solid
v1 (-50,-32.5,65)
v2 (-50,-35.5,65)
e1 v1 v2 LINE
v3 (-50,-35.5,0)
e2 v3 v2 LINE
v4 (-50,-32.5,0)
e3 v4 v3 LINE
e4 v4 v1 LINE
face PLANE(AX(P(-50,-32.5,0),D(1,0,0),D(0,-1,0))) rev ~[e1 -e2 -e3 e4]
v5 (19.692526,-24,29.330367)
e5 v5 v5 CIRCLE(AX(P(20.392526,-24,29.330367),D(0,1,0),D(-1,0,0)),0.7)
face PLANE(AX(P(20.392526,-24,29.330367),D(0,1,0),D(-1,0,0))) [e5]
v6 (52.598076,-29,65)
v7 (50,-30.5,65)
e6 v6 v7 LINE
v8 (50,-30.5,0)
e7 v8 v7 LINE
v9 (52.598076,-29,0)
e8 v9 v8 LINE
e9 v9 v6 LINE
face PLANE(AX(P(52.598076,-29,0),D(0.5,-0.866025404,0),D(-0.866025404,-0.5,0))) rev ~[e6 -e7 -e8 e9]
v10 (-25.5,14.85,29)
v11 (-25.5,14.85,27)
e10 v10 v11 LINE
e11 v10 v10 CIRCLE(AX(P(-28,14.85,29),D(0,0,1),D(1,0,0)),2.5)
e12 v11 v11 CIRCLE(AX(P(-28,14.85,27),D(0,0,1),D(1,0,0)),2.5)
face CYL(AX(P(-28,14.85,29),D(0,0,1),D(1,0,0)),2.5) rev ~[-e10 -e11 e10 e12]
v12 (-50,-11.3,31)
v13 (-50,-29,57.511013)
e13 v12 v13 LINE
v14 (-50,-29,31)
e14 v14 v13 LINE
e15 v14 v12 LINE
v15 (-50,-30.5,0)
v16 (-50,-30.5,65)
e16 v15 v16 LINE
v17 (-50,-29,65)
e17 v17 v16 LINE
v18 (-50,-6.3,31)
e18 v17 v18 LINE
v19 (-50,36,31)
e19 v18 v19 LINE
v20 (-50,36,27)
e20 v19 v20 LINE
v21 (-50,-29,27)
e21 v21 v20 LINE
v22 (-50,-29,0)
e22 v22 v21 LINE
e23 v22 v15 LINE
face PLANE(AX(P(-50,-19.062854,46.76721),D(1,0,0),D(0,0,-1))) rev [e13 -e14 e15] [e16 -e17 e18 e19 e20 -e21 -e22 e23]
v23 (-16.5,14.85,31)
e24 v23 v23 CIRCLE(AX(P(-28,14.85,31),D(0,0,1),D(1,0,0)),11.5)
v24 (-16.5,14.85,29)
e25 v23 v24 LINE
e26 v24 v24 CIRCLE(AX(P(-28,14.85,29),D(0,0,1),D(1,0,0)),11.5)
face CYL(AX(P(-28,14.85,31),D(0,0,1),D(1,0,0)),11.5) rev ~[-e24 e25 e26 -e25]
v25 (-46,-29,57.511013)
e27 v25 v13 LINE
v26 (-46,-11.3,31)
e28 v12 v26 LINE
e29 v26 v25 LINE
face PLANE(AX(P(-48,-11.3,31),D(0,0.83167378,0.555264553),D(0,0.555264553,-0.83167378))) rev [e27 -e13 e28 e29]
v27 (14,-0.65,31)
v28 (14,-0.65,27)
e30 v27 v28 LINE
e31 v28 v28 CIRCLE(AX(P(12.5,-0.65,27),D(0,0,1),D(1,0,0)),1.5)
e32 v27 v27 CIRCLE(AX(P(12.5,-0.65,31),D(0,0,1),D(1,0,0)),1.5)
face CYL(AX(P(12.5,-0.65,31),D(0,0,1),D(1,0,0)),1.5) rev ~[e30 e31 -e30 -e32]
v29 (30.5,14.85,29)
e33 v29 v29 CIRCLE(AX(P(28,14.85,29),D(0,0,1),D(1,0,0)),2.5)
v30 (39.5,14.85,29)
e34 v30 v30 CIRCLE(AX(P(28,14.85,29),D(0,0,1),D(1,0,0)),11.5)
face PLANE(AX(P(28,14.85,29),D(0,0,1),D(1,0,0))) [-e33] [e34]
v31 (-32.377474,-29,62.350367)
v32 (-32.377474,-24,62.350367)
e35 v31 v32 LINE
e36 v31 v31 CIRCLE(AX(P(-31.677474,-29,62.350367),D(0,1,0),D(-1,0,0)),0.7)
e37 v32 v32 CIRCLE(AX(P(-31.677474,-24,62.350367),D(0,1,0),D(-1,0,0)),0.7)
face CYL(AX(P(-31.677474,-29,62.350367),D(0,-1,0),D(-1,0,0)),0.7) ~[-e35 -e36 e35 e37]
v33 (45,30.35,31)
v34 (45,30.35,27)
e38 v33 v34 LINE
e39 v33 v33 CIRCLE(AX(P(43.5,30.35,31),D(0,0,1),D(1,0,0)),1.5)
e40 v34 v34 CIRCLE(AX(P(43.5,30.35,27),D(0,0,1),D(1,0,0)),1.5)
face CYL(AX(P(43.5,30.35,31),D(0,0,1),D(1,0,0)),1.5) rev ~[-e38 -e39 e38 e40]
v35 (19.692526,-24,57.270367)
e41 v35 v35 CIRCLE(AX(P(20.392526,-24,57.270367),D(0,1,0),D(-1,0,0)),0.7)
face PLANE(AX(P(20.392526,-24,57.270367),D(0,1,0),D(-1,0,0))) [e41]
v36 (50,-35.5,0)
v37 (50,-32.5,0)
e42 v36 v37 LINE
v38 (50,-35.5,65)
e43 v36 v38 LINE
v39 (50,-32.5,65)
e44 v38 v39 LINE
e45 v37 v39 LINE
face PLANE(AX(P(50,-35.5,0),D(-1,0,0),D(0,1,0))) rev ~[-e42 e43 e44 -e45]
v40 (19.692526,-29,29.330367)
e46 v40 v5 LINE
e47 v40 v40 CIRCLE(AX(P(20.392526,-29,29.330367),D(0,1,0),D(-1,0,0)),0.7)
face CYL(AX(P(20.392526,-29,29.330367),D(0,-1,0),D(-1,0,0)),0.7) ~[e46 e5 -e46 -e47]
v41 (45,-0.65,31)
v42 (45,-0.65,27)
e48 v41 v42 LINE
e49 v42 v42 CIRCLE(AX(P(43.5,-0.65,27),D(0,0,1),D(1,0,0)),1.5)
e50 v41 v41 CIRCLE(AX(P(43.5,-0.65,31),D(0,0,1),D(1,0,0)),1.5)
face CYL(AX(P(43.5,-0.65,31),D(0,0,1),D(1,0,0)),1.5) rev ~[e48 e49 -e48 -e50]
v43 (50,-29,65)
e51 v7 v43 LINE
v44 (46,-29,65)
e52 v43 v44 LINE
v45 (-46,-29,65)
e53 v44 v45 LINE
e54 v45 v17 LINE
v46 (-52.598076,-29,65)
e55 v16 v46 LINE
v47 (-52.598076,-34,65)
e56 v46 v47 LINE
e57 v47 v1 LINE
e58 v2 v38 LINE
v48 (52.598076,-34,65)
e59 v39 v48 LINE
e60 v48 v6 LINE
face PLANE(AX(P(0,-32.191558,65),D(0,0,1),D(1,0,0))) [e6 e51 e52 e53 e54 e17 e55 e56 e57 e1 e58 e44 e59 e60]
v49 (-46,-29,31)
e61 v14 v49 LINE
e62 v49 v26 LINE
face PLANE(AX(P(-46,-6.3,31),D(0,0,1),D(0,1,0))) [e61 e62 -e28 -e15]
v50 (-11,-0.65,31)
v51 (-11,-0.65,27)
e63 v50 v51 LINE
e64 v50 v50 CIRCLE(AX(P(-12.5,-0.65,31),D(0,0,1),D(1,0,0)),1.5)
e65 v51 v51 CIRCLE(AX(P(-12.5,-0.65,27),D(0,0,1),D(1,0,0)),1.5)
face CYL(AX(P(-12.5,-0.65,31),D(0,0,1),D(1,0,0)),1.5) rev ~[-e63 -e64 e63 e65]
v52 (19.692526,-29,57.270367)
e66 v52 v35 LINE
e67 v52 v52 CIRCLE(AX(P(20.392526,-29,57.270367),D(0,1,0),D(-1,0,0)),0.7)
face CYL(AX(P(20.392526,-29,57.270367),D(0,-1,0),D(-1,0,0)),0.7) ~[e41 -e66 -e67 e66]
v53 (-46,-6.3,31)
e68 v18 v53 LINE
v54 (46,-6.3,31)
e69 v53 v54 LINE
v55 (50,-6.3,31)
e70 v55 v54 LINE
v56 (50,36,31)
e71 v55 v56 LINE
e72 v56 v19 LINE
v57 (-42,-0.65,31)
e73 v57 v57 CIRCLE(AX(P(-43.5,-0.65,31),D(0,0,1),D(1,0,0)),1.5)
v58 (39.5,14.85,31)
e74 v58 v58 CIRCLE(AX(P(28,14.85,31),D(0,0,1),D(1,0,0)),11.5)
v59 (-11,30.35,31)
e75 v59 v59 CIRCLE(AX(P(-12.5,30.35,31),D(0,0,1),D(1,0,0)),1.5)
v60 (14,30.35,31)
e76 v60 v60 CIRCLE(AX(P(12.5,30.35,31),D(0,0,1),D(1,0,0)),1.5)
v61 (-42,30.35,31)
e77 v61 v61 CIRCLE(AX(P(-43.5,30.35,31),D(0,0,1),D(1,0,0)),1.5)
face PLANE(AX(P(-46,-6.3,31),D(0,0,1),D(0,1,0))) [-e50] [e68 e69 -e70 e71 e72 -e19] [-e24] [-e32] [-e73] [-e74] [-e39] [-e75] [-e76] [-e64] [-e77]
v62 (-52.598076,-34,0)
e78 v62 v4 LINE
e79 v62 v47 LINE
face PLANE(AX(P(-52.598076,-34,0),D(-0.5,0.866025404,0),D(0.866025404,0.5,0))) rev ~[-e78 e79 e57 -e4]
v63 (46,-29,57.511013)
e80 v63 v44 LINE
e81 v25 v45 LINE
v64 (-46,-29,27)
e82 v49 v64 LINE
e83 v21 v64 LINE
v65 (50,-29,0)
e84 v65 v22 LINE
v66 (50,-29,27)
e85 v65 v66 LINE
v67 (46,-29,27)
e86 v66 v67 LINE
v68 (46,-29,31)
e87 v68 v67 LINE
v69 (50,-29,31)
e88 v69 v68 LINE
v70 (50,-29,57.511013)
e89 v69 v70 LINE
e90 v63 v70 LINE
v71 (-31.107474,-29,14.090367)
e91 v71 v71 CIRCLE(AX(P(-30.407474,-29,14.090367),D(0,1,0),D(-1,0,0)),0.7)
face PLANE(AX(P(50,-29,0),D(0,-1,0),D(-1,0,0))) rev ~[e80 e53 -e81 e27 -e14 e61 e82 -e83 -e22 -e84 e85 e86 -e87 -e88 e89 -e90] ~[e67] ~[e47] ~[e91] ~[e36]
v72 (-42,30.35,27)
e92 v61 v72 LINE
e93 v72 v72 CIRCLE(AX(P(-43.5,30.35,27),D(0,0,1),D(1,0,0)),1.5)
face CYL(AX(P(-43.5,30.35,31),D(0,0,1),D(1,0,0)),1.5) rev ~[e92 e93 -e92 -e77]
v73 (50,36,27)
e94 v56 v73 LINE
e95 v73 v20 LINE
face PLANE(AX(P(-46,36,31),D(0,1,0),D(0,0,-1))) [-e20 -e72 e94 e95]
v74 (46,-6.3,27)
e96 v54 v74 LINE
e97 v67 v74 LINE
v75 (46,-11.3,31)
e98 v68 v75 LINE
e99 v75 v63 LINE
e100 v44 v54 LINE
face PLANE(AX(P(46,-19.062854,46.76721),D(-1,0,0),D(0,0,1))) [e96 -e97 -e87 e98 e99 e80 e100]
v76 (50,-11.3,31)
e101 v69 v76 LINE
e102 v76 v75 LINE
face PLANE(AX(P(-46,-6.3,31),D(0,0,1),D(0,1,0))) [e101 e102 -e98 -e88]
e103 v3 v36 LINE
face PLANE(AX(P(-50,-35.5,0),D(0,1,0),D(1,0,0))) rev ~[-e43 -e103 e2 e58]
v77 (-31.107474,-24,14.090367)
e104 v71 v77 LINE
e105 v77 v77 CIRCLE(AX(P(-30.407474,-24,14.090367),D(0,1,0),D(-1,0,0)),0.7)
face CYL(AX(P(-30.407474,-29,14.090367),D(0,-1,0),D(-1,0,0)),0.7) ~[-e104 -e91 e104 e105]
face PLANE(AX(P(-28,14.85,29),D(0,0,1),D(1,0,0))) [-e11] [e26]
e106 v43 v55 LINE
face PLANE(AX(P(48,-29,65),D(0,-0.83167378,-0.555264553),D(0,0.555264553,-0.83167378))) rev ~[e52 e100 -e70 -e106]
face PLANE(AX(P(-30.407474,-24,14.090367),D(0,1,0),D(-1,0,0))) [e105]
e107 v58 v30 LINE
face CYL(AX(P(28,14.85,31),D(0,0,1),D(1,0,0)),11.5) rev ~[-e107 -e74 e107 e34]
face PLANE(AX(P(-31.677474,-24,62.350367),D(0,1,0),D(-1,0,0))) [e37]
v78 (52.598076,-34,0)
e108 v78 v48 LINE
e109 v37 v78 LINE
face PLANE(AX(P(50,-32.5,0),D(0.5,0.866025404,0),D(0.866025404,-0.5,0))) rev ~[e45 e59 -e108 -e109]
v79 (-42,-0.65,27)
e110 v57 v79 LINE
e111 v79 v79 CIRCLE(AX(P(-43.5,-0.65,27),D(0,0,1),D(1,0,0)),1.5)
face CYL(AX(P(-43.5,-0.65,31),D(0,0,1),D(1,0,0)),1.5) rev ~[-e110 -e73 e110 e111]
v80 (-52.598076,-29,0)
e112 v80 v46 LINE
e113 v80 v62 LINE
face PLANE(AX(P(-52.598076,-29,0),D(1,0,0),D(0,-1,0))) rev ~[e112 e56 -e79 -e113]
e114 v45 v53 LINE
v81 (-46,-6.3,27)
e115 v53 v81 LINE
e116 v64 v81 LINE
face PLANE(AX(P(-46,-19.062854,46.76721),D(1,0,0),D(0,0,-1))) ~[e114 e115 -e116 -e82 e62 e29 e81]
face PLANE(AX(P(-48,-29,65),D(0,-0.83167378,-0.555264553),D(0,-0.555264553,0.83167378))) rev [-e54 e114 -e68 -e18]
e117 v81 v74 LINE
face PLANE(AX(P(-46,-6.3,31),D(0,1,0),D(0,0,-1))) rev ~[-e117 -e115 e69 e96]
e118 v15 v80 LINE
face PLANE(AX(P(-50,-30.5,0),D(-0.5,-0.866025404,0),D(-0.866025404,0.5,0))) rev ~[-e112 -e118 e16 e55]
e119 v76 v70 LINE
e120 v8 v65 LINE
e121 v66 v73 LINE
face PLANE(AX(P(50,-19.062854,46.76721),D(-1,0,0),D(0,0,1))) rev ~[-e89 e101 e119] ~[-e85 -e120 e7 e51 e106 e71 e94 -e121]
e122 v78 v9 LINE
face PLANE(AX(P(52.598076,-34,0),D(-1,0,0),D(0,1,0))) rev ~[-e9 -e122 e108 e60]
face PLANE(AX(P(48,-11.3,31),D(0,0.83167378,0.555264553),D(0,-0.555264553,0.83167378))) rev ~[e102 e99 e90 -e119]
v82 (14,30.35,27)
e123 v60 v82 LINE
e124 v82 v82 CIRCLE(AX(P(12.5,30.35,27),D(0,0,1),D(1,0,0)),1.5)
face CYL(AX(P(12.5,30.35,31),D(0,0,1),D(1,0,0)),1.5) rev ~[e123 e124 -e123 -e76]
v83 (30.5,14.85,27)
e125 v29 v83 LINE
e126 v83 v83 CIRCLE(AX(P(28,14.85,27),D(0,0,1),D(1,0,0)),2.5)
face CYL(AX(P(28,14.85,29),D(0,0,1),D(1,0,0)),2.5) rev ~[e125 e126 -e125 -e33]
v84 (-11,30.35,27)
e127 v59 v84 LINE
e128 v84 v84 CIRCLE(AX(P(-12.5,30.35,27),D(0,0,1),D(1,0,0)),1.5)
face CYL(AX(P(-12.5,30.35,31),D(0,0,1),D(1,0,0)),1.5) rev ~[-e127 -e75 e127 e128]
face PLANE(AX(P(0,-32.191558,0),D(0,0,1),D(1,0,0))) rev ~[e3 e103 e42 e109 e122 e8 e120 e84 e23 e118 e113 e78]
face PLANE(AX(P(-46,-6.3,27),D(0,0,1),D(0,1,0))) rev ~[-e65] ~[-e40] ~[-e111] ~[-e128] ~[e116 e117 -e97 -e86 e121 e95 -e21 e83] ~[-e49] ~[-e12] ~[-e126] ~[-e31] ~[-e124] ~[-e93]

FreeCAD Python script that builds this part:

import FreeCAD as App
import Part
import Sketcher
Q = App.Units.Quantity


def add_polygon(sketch, points):
    """Adds a closed chain of lines whose ends are joined by coincident constraints."""
    first, n = sketch.GeometryCount, len(points)
    for a, b in zip(points, points[1:] + points[:1]):
        sketch.addGeometry(Part.LineSegment(App.Vector(*a, 0), App.Vector(*b, 0)), False)
    for i in range(n):
        sketch.addConstraint(Sketcher.Constraint("Coincident", first + i, 2, first + (i + 1) % n, 1))

doc = App.newDocument("Part")
body = doc.addObject("PartDesign::Body", "Body")

# Sketch on XY plane
sketch1 = body.newObject("Sketcher::SketchObject", "Sketch")
sketch1.AttachmentSupport = (doc.getObject("XY_Plane"), [""])
sketch1.MapMode = "FlatFace"
add_polygon(sketch1, [(-50, -29), (-50, -30.5), (-52.6, -29), (-52.6, -34), (-50, -32.5), (-50, -35.5), (50, -35.5), (50, -32.5), (52.6, -34), (52.6, -29), (50, -30.5), (50, -29)])  # lines 0-11
sketch1.addConstraint(Sketcher.Constraint("Vertical", 0))
sketch1.addConstraint(Sketcher.Constraint("Vertical", 2))
sketch1.addConstraint(Sketcher.Constraint("Vertical", 4))
sketch1.addConstraint(Sketcher.Constraint("Horizontal", 5))
sketch1.addConstraint(Sketcher.Constraint("Vertical", 6))
sketch1.addConstraint(Sketcher.Constraint("Vertical", 8))
sketch1.addConstraint(Sketcher.Constraint("Vertical", 10))
sketch1.addConstraint(Sketcher.Constraint("Horizontal", 11))
sketch1.addConstraint(Sketcher.Constraint("Symmetric", 3, 2, 6, 2, -2))
sketch1.addConstraint(Sketcher.Constraint("Symmetric", 2, 2, 7, 2, -2))
sketch1.addConstraint(Sketcher.Constraint("Symmetric", 0, 2, 9, 2, -2))
sketch1.addConstraint(Sketcher.Constraint("Parallel", 1, 7))
sketch1.addConstraint(Sketcher.Constraint("Parallel", 3, 9))
sketch1.addConstraint(Sketcher.Constraint("Horizontal", 8, 2, 10, 2))
sketch1.addConstraint(Sketcher.Constraint("Vertical", 0, 2, 3, 2))
sketch1.addConstraint(Sketcher.Constraint("DistanceX", 5, 1, 5, 2, 100.0))
sketch1.addConstraint(Sketcher.Constraint("DistanceY", 2, 2, 2, 1, 5.0))
sketch1.addConstraint(Sketcher.Constraint("DistanceY", 4, 2, 4, 1, 3.0))
sketch1.addConstraint(Sketcher.Constraint("Angle", 1, Q("150 deg")))
sketch1.addConstraint(Sketcher.Constraint("Distance", 1, 3.0))
sketch1.addConstraint(Sketcher.Constraint("DistanceY", 1, 2, -1, 1, 29.0))
pad1 = body.newObject("PartDesign::Pad", "Pad")
pad1.Profile = sketch1
pad1.Length = 65

# Sketch on XZ plane
sketch2 = body.newObject("Sketcher::SketchObject", "Sketch001")
sketch2.AttachmentSupport = (doc.getObject("XZ_Plane"), [""])
sketch2.MapMode = "FlatFace"
sketch2.AttachmentOffset = App.Placement(App.Vector(0, 0, 29), App.Rotation())
add_polygon(sketch2, [(-50, 27), (-50, 31), (-46, 31), (-46, 27)])  # lines 0-3
sketch2.addConstraint(Sketcher.Constraint("Vertical", 0))
sketch2.addConstraint(Sketcher.Constraint("Horizontal", 1))
sketch2.addConstraint(Sketcher.Constraint("Vertical", 2))
sketch2.addConstraint(Sketcher.Constraint("Horizontal", 3))
sketch2.addConstraint(Sketcher.Constraint("Equal", 3, 0))
sketch2.addConstraint(Sketcher.Constraint("DistanceX", 1, 1, 1, 2, 4.0))
sketch2.addConstraint(Sketcher.Constraint("DistanceX", 0, 2, -1, 1, 50.0))
sketch2.addConstraint(Sketcher.Constraint("DistanceY", -1, 1, 0, 2, 31.0))
pad2 = body.newObject("PartDesign::Pad", "Pad001")
pad2.Profile = sketch2
pad2.Length = 65
pad2.Reversed = True
doc.recompute()

mirrored = body.newObject("PartDesign::Mirrored", "Mirrored")
mirrored.Originals = [pad2]
mirrored.MirrorPlane = (doc.getObject("YZ_Plane"), [""])
body.Tip = mirrored

# Sketch on YZ plane
sketch3 = body.newObject("Sketcher::SketchObject", "Sketch002")
sketch3.AttachmentSupport = (doc.getObject("YZ_Plane"), [""])
sketch3.MapMode = "FlatFace"
sketch3.AttachmentOffset = App.Placement(App.Vector(0, 0, -46), App.Rotation())
add_polygon(sketch3, [(36, 31), (-6.3, 31), (-6.3, 27), (36, 27)])  # lines 0-3
sketch3.addConstraint(Sketcher.Constraint("Horizontal", 0))
sketch3.addConstraint(Sketcher.Constraint("Vertical", 1))
sketch3.addConstraint(Sketcher.Constraint("Horizontal", 2))
sketch3.addConstraint(Sketcher.Constraint("Vertical", 3))
sketch3.addConstraint(Sketcher.Constraint("DistanceY", 1, 2, 1, 1, 4.0))
sketch3.addConstraint(Sketcher.Constraint("DistanceX", 0, 2, 0, 1, 42.3))
sketch3.addConstraint(Sketcher.Constraint("DistanceY", -1, 1, 0, 2, 31.0))
sketch3.addConstraint(Sketcher.Constraint("DistanceX", -1, 1, 2, 2, 36.0))
pad3 = body.newObject("PartDesign::Pad", "Pad002")
pad3.Profile = sketch3
pad3.Length = 92

# Sketch on XY plane
sketch4 = body.newObject("Sketcher::SketchObject", "Sketch003")
sketch4.AttachmentSupport = (doc.getObject("XY_Plane"), [""])
sketch4.MapMode = "FlatFace"
sketch4.AttachmentOffset = App.Placement(App.Vector(0, 0, 31), App.Rotation())
sketch4.addGeometry(Part.Circle(App.Vector(-28, 15, 0), App.Vector(0, 0, 1), 12), False)
sketch4.addGeometry(Part.Circle(App.Vector(28, 15, 0), App.Vector(0, 0, 1), 12), False)
sketch4.addConstraint(Sketcher.Constraint("Equal", 0, 1))
sketch4.addConstraint(Sketcher.Constraint("Symmetric", 0, 3, 1, 3, -2))
sketch4.addConstraint(Sketcher.Constraint("Diameter", 0, 23.0))
sketch4.addConstraint(Sketcher.Constraint("DistanceX", 0, 3, -1, 1, 28.0))
sketch4.addConstraint(Sketcher.Constraint("DistanceY", -1, 1, 0, 3, 14.85))
pocket1 = body.newObject("PartDesign::Pocket", "Pocket")
pocket1.Profile = sketch4
pocket1.Length = 2

# Sketch on XY plane
sketch5 = body.newObject("Sketcher::SketchObject", "Sketch004")
sketch5.AttachmentSupport = (doc.getObject("XY_Plane"), [""])
sketch5.MapMode = "FlatFace"
sketch5.AttachmentOffset = App.Placement(App.Vector(0, 0, 29), App.Rotation())
sketch5.addGeometry(Part.Circle(App.Vector(-28, 14.8, 0), App.Vector(0, 0, 1), 2.5), False)
sketch5.addGeometry(Part.Circle(App.Vector(28, 14.8, 0), App.Vector(0, 0, 1), 2.5), False)
sketch5.addConstraint(Sketcher.Constraint("Equal", 0, 1))
sketch5.addConstraint(Sketcher.Constraint("Symmetric", 0, 3, 1, 3, -2))
sketch5.addConstraint(Sketcher.Constraint("Diameter", 0, 5.0))
sketch5.addConstraint(Sketcher.Constraint("DistanceX", 0, 3, -1, 1, 28.0))
sketch5.addConstraint(Sketcher.Constraint("DistanceY", -1, 1, 0, 3, 14.85))
pocket2 = body.newObject("PartDesign::Pocket", "Pocket001")
pocket2.Profile = sketch5
pocket2.Length = 2

# Sketch on XY plane
sketch6 = body.newObject("Sketcher::SketchObject", "Sketch005")
sketch6.AttachmentSupport = (doc.getObject("XY_Plane"), [""])
sketch6.MapMode = "FlatFace"
sketch6.AttachmentOffset = App.Placement(App.Vector(0, 0, 31), App.Rotation())
sketch6.addGeometry(Part.Circle(App.Vector(-43.5, 30.4, 0), App.Vector(0, 0, 1), 1.5), False)
sketch6.addGeometry(Part.Circle(App.Vector(-12.5, 30.4, 0), App.Vector(0, 0, 1), 1.5), False)
sketch6.addGeometry(Part.Circle(App.Vector(-43.5, -0.7, 0), App.Vector(0, 0, 1), 1.5), False)
sketch6.addGeometry(Part.Circle(App.Vector(-12.5, -0.7, 0), App.Vector(0, 0, 1), 1.5), False)
sketch6.addGeometry(Part.Circle(App.Vector(12.5, 30.4, 0), App.Vector(0, 0, 1), 1.5), False)
sketch6.addGeometry(Part.Circle(App.Vector(43.5, 30.4, 0), App.Vector(0, 0, 1), 1.5), False)
sketch6.addGeometry(Part.Circle(App.Vector(12.5, -0.7, 0), App.Vector(0, 0, 1), 1.5), False)
sketch6.addGeometry(Part.Circle(App.Vector(43.5, -0.7, 0), App.Vector(0, 0, 1), 1.5), False)
sketch6.addConstraint(Sketcher.Constraint("Equal", 0, 1))
sketch6.addConstraint(Sketcher.Constraint("Equal", 1, 2))
sketch6.addConstraint(Sketcher.Constraint("Equal", 2, 3))
sketch6.addConstraint(Sketcher.Constraint("Equal", 3, 4))
sketch6.addConstraint(Sketcher.Constraint("Equal", 4, 5))
sketch6.addConstraint(Sketcher.Constraint("Equal", 5, 6))
sketch6.addConstraint(Sketcher.Constraint("Equal", 6, 7))
sketch6.addConstraint(Sketcher.Constraint("Symmetric", 1, 3, 4, 3, -2))
sketch6.addConstraint(Sketcher.Constraint("Symmetric", 0, 3, 5, 3, -2))
sketch6.addConstraint(Sketcher.Constraint("Symmetric", 3, 3, 6, 3, -2))
sketch6.addConstraint(Sketcher.Constraint("Symmetric", 2, 3, 7, 3, -2))
sketch6.addConstraint(Sketcher.Constraint("Horizontal", 0, 3, 1, 3))
sketch6.addConstraint(Sketcher.Constraint("Horizontal", 2, 3, 3, 3))
sketch6.addConstraint(Sketcher.Constraint("Vertical", 0, 3, 2, 3))
sketch6.addConstraint(Sketcher.Constraint("Vertical", 1, 3, 3, 3))
sketch6.addConstraint(Sketcher.Constraint("Diameter", 0, 3.0))
sketch6.addConstraint(Sketcher.Constraint("DistanceX", 0, 3, 1, 3, 31.0))
sketch6.addConstraint(Sketcher.Constraint("DistanceY", 2, 3, 0, 3, 31.0))
sketch6.addConstraint(Sketcher.Constraint("DistanceX", 1, 3, 4, 3, 25.0))
sketch6.addConstraint(Sketcher.Constraint("DistanceY", -1, 1, 0, 3, 30.35))
pocket3 = body.newObject("PartDesign::Pocket", "Pocket002")
pocket3.Profile = sketch6
pocket3.Length = 4

# Sketch on YZ plane
sketch7 = body.newObject("Sketcher::SketchObject", "Sketch006")
sketch7.AttachmentSupport = (doc.getObject("YZ_Plane"), [""])
sketch7.MapMode = "FlatFace"
sketch7.AttachmentOffset = App.Placement(App.Vector(0, 0, 48), App.Rotation())
add_polygon(sketch7, [(-6, 31), (-29, 65), (-29, 58), (-11, 31)])  # lines 0-3
sketch7.addConstraint(Sketcher.Constraint("Vertical", 1))
sketch7.addConstraint(Sketcher.Constraint("Horizontal", 3))
sketch7.addConstraint(Sketcher.Constraint("Parallel", 0, 2))
sketch7.addConstraint(Sketcher.Constraint("DistanceX", 3, 1, 3, 2, 5.0))
sketch7.addConstraint(Sketcher.Constraint("DistanceX", 0, 2, -1, 1, 29.0))
sketch7.addConstraint(Sketcher.Constraint("DistanceY", -1, 1, 0, 2, 65.0))
sketch7.addConstraint(Sketcher.Constraint("DistanceY", -1, 1, 2, 2, 31.0))
sketch7.addConstraint(Sketcher.Constraint("DistanceX", 2, 2, -1, 1, 11.3))
pad4 = body.newObject("PartDesign::Pad", "Pad003")
pad4.Profile = sketch7
pad4.Length = 4
pad4.Midplane = True
doc.recompute()

mirrored2 = body.newObject("PartDesign::Mirrored", "Mirrored001")
mirrored2.Originals = [pad4]
mirrored2.MirrorPlane = (doc.getObject("YZ_Plane"), [""])
body.Tip = mirrored2

# Sketch on XZ plane
sketch8 = body.newObject("Sketcher::SketchObject", "Sketch007")
sketch8.AttachmentSupport = (doc.getObject("XZ_Plane"), [""])
sketch8.MapMode = "FlatFace"
sketch8.AttachmentOffset = App.Placement(App.Vector(0, 0, 29), App.Rotation())
sketch8.addGeometry(Part.Circle(App.Vector(-30.4, 14.1, 0), App.Vector(0, 0, 1), 0.7), False)
sketch8.addGeometry(Part.Circle(App.Vector(-31.7, 62.4, 0), App.Vector(0, 0, 1), 0.7), False)
sketch8.addGeometry(Part.Circle(App.Vector(20.4, 29.3, 0), App.Vector(0, 0, 1), 0.7), False)
sketch8.addGeometry(Part.Circle(App.Vector(20.4, 57.3, 0), App.Vector(0, 0, 1), 0.7), False)
sketch8.addConstraint(Sketcher.Constraint("Equal", 0, 1))
sketch8.addConstraint(Sketcher.Constraint("Equal", 1, 2))
sketch8.addConstraint(Sketcher.Constraint("Equal", 2, 3))
sketch8.addConstraint(Sketcher.Constraint("Vertical", 2, 3, 3, 3))
sketch8.addConstraint(Sketcher.Constraint("Diameter", 0, 1.4))
sketch8.addConstraint(Sketcher.Constraint("DistanceX", 0, 3, 2, 3, 50.8))
sketch8.addConstraint(Sketcher.Constraint("DistanceX", 1, 3, 0, 3, 1.27))
sketch8.addConstraint(Sketcher.Constraint("DistanceY", 0, 3, 1, 3, 48.26))
sketch8.addConstraint(Sketcher.Constraint("DistanceY", 0, 3, 2, 3, 15.24))
sketch8.addConstraint(Sketcher.Constraint("DistanceY", 2, 3, 3, 3, 27.94))
sketch8.addConstraint(Sketcher.Constraint("DistanceX", 0, 3, -1, 1, 30.407474))
sketch8.addConstraint(Sketcher.Constraint("DistanceY", -1, 1, 0, 3, 14.090367))
pad5 = body.newObject("PartDesign::Pad", "Pad004")
pad5.Profile = sketch8
pad5.Length = 5
pad5.Reversed = True

doc.recompute()
